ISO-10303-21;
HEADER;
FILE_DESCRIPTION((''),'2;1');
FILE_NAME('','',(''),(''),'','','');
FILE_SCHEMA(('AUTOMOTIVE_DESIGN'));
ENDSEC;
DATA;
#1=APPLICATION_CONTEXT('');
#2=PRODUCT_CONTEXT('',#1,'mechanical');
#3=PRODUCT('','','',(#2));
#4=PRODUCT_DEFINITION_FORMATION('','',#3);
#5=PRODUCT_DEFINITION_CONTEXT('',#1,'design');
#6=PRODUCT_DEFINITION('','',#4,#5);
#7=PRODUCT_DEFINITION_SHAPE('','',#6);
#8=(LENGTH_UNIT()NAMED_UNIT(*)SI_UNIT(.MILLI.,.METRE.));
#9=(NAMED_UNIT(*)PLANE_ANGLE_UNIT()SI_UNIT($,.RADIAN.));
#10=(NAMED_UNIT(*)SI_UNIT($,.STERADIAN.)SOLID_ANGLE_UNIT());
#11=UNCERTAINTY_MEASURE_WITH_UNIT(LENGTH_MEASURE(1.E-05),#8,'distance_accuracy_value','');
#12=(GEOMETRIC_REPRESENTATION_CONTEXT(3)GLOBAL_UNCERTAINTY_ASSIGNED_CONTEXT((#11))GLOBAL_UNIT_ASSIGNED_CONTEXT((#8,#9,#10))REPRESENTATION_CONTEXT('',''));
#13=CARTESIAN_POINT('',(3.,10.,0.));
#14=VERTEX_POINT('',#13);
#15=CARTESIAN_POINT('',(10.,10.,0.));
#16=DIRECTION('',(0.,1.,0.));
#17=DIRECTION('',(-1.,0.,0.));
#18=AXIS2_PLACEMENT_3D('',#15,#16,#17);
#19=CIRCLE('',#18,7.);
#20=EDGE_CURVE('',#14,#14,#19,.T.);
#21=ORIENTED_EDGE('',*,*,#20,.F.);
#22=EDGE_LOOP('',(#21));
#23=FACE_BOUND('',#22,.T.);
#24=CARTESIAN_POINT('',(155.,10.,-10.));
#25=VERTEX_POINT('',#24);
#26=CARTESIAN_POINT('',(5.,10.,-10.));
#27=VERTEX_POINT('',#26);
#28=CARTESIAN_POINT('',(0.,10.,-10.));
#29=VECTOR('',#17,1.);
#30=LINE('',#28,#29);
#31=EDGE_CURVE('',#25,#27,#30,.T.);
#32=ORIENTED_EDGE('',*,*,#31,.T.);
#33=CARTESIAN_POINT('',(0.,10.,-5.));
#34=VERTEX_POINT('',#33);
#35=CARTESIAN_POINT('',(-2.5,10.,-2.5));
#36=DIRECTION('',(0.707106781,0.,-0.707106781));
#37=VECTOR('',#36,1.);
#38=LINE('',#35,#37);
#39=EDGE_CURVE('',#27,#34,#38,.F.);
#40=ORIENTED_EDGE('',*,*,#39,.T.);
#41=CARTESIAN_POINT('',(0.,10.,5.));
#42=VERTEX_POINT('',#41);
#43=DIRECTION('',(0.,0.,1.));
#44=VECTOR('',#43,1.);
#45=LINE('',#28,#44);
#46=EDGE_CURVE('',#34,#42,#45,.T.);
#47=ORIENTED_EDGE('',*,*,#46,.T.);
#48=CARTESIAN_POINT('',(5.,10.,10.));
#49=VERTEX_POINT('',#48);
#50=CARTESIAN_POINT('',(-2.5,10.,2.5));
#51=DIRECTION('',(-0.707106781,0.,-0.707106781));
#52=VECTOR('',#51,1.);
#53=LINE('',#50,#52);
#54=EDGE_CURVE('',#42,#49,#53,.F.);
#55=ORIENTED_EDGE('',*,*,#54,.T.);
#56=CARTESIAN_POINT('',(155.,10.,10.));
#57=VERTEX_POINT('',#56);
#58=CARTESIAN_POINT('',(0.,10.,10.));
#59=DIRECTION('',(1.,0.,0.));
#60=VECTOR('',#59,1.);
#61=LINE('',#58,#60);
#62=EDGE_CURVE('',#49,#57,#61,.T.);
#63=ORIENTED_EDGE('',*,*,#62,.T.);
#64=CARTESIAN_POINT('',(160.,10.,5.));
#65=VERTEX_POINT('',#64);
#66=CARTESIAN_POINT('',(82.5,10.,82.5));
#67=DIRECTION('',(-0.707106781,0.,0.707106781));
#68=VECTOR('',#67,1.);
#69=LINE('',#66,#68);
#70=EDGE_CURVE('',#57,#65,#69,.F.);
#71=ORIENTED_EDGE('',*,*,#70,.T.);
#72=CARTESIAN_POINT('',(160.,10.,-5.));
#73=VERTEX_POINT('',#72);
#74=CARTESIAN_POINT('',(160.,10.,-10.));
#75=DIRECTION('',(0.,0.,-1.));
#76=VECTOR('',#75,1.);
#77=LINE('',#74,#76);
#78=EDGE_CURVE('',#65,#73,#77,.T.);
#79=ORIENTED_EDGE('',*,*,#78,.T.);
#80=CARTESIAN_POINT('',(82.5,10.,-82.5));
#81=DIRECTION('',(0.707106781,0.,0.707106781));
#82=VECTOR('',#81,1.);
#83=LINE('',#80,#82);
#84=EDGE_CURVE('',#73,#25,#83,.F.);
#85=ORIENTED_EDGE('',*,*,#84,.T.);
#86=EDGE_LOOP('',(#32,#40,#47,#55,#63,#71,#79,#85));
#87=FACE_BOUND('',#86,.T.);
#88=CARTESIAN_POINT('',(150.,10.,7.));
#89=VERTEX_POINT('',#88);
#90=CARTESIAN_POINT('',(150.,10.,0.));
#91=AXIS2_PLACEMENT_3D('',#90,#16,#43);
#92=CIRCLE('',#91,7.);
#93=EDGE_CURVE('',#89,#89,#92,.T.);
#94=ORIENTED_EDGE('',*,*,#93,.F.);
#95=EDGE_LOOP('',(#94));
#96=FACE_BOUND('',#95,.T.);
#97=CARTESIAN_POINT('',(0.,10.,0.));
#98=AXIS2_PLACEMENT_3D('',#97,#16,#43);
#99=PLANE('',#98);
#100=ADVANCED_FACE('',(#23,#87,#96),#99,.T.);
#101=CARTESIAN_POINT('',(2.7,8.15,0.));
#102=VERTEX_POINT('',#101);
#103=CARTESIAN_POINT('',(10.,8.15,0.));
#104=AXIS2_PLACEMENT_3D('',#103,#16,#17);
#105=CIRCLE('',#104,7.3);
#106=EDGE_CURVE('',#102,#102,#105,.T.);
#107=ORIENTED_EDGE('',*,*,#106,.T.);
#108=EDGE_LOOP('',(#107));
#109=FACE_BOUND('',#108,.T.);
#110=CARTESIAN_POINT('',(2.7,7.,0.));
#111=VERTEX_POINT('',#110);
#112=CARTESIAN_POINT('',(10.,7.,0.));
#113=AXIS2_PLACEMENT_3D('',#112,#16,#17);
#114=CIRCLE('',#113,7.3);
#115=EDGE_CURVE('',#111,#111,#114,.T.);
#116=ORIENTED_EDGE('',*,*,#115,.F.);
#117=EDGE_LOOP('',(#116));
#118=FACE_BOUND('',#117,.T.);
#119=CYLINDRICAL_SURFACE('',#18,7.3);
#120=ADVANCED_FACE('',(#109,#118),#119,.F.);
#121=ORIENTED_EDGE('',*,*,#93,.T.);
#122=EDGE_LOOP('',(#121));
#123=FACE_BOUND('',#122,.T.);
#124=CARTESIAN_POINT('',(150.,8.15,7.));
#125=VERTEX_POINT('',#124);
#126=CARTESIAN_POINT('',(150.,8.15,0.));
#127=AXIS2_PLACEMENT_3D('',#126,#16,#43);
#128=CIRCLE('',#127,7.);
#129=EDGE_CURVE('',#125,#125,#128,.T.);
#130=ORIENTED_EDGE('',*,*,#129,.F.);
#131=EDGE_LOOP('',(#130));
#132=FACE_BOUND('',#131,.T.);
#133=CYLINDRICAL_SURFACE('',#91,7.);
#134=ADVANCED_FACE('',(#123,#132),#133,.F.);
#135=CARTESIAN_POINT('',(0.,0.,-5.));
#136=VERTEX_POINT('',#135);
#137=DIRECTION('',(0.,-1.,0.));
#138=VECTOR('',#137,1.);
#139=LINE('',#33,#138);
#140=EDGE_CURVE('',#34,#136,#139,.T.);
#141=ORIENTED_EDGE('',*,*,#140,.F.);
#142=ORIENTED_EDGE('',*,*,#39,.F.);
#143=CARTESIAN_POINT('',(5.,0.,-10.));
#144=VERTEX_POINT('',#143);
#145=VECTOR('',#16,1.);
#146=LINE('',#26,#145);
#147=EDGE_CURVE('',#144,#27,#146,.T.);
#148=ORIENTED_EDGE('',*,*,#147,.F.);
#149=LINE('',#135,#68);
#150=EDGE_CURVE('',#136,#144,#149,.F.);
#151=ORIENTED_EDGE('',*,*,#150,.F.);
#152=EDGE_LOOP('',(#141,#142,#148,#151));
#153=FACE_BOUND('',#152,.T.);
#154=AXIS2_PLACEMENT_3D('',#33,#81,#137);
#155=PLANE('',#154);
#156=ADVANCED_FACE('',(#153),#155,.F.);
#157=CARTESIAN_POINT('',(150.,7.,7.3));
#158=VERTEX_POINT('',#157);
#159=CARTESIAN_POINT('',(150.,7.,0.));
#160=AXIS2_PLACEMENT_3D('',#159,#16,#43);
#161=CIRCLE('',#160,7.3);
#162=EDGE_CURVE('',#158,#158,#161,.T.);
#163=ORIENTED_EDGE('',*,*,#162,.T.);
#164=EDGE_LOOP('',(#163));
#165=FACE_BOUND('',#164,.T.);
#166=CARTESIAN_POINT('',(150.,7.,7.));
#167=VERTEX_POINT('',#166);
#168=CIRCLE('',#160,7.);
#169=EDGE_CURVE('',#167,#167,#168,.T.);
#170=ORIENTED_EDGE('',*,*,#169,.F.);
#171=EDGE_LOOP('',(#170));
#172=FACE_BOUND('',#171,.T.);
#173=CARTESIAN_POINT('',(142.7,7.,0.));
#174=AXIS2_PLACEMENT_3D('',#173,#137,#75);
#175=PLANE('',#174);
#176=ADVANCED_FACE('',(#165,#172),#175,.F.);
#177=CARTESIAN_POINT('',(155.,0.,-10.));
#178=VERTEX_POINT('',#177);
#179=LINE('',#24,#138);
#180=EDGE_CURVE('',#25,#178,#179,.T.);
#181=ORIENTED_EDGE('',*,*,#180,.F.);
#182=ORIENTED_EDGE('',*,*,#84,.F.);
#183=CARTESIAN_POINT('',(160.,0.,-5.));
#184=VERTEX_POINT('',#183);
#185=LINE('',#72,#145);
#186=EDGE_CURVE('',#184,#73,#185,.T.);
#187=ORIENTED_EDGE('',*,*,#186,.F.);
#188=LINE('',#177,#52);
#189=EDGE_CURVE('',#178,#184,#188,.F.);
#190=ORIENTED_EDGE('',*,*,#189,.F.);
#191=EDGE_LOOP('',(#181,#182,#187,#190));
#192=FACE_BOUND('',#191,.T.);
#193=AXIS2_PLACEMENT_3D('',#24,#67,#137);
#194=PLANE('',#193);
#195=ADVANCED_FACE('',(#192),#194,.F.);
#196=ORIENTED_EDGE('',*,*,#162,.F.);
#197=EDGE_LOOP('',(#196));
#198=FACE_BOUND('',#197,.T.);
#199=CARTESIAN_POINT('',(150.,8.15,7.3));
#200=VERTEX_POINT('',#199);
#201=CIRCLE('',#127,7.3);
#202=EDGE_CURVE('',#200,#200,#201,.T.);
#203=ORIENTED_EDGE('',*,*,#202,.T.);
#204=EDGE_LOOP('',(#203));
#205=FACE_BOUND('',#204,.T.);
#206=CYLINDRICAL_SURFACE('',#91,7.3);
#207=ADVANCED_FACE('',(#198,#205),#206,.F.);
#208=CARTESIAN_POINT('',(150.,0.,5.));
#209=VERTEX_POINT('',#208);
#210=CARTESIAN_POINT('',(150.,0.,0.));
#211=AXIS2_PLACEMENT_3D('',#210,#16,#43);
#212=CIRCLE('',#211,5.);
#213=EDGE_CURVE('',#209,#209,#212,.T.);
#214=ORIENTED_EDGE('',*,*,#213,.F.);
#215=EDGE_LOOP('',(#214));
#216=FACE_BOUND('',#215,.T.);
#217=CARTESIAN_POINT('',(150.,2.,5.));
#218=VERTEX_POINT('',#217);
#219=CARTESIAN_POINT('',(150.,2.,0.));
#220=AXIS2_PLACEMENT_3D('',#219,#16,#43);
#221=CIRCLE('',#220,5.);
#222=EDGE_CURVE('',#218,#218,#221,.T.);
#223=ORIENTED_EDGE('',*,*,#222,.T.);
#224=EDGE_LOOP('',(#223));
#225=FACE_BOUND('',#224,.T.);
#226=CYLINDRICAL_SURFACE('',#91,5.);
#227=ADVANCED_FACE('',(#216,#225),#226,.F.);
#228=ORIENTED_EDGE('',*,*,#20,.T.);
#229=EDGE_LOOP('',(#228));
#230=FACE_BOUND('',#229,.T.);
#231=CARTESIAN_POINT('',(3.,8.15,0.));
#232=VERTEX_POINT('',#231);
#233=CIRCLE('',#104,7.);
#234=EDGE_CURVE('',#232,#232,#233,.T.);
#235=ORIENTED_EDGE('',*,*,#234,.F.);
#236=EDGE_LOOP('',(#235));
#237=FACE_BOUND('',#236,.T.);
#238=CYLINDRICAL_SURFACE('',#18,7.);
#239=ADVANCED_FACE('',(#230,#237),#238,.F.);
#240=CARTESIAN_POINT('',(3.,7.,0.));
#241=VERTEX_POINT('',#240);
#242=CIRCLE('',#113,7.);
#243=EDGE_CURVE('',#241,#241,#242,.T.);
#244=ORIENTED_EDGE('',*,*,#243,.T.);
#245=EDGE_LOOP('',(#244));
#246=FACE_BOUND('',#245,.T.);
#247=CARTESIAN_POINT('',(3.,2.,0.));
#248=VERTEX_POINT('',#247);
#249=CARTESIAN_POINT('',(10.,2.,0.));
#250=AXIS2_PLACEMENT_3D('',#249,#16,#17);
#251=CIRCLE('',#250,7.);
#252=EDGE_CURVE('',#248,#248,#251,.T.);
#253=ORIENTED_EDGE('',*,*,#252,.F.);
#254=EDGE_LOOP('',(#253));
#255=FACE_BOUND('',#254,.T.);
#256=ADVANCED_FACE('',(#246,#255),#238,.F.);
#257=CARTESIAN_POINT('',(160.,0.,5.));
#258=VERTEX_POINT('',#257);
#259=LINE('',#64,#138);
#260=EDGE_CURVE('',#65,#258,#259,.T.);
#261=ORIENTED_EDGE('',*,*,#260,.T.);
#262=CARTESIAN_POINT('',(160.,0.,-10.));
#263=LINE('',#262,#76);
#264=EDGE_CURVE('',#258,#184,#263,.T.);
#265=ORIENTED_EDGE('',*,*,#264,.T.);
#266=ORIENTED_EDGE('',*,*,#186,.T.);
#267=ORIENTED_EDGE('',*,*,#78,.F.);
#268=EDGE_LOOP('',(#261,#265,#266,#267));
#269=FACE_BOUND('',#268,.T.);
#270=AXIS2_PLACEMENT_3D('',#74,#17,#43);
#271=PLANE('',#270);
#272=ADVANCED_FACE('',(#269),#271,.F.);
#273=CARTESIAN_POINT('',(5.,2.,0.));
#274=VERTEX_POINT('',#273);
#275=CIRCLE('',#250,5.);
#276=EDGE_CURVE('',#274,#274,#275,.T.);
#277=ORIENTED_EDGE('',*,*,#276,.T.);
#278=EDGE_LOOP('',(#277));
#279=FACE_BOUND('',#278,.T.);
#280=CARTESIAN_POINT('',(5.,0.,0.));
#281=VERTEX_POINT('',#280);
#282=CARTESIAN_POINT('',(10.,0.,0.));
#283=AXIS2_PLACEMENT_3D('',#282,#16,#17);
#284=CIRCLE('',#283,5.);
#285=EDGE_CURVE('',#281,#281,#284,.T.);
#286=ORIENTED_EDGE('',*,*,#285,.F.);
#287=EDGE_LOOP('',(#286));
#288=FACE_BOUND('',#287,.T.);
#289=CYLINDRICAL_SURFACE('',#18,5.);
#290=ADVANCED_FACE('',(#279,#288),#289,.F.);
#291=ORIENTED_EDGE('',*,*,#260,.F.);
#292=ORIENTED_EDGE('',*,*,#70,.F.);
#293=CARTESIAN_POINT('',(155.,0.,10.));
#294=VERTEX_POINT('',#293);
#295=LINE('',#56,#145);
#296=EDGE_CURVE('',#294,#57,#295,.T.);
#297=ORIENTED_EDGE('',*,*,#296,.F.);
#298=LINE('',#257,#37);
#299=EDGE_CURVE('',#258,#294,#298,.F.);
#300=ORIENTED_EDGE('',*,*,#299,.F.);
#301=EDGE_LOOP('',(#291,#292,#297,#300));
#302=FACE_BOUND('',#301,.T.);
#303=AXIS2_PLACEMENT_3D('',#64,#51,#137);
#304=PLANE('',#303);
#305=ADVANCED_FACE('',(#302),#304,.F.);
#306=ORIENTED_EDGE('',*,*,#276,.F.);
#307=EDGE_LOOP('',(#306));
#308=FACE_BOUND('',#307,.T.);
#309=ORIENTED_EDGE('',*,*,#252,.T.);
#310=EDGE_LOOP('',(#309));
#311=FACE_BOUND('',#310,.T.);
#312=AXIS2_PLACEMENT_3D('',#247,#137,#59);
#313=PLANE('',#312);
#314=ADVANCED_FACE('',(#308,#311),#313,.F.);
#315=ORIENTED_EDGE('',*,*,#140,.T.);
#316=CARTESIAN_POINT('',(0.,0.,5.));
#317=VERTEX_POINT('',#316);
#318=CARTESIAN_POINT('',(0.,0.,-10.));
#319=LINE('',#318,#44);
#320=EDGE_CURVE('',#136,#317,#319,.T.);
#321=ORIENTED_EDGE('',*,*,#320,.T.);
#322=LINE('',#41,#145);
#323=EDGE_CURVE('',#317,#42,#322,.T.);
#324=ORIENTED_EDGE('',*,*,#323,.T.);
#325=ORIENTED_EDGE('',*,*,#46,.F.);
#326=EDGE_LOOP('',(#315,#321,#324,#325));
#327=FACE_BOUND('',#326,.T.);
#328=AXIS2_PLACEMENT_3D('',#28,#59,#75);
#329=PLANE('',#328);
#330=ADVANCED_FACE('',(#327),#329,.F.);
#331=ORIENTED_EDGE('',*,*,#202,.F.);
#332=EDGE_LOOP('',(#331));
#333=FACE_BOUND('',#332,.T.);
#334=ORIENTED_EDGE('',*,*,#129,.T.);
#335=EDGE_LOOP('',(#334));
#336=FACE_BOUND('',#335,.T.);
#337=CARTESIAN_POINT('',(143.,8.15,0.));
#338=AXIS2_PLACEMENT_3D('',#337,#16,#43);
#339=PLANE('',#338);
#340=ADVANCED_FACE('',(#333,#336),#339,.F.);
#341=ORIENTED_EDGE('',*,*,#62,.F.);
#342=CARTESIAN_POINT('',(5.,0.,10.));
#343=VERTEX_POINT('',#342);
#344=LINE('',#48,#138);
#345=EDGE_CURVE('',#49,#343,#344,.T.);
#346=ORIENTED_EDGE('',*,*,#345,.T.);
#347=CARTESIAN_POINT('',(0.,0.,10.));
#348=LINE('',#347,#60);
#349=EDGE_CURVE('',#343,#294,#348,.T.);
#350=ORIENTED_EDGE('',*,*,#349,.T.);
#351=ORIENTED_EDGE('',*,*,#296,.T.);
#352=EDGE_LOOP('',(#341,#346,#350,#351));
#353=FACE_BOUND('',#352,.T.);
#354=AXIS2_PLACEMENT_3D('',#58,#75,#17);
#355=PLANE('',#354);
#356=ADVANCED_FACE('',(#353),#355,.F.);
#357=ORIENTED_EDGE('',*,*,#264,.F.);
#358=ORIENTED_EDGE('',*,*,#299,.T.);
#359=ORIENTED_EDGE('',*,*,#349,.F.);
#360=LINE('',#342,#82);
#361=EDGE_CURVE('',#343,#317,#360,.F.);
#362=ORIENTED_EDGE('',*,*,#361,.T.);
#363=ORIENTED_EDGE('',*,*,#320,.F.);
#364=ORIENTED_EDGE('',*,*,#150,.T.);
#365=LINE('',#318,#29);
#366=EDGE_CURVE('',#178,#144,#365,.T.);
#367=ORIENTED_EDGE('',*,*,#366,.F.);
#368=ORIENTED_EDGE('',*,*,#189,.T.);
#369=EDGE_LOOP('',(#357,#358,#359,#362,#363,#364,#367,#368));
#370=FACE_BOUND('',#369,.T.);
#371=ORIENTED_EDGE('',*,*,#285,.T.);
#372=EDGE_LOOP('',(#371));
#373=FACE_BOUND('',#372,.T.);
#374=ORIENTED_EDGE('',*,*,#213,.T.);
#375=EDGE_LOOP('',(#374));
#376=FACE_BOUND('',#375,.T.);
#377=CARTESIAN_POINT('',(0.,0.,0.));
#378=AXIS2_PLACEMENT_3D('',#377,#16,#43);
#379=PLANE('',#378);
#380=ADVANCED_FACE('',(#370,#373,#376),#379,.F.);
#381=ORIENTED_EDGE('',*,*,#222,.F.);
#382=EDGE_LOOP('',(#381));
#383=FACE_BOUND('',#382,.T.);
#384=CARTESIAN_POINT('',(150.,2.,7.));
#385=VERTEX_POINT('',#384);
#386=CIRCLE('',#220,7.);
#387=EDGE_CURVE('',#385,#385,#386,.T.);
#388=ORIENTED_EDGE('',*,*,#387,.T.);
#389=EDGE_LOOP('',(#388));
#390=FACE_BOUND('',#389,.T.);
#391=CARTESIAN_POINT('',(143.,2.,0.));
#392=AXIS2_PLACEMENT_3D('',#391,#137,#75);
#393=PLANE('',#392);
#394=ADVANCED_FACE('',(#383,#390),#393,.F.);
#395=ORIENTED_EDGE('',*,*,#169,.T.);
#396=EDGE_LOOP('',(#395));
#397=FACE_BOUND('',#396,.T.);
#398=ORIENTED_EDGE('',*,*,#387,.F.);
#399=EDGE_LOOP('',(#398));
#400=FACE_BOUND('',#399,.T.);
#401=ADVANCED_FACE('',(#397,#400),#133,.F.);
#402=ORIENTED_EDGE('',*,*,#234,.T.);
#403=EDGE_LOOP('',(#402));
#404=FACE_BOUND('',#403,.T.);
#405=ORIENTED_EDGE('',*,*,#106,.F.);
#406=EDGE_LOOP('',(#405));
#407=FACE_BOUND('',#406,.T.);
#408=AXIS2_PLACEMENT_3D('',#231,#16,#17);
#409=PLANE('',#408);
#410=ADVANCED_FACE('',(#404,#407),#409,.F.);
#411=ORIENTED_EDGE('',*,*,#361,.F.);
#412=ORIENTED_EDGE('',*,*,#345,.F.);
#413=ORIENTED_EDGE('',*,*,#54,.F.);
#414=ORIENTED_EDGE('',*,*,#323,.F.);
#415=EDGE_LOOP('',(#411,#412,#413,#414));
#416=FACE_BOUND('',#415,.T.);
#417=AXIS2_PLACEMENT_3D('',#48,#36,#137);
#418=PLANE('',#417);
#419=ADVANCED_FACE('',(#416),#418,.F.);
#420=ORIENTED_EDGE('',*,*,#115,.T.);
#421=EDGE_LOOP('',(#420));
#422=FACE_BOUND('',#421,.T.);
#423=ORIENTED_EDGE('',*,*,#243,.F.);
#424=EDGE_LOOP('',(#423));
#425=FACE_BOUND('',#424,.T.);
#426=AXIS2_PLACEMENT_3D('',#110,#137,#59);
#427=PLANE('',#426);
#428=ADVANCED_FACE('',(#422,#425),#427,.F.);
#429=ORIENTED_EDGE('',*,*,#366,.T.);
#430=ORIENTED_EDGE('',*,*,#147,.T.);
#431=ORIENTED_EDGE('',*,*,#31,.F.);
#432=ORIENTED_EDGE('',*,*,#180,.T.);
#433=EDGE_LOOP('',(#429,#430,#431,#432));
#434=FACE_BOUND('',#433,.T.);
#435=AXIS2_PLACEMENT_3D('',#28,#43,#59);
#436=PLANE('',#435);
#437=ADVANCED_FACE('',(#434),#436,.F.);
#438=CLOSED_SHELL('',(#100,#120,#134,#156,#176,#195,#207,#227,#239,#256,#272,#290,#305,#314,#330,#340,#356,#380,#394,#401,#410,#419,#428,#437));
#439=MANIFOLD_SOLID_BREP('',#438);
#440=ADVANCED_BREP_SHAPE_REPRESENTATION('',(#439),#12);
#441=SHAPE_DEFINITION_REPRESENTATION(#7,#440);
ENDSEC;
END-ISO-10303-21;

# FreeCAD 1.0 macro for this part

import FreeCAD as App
import Part
import Sketcher
from FreeCAD import Vector
Q = App.Units.Quantity


def edges_at(feature, points):
    """Names of the edges that pass closest to the given points."""
    edges = feature.Shape.Edges
    near = lambda p: min(range(len(edges)), key=lambda i: edges[i].distToShape(Part.Vertex(*p))[0])
    return sorted({f"Edge{near(p) + 1}" for p in points})


def add_polygon(sketch, points):
    """Adds a closed chain of lines whose ends are joined by coincident constraints."""
    first, n = sketch.GeometryCount, len(points)
    for a, b in zip(points, points[1:] + points[:1]):
        sketch.addGeometry(Part.LineSegment(App.Vector(*a, 0), App.Vector(*b, 0)), False)
    for i in range(n):
        sketch.addConstraint(Sketcher.Constraint("Coincident", first + i, 2, first + (i + 1) % n, 1))

doc = App.newDocument("Part")
body = doc.addObject("PartDesign::Body", "Body")

sketch1 = doc.addObject("Sketcher::SketchObject", "Sketch")
body.addObject(sketch1)
sketch1.AttachmentSupport = (doc.XZ_Plane, [""])
sketch1.MapMode = "FlatFace"
add_polygon(sketch1, [(0, -10), (0, 10), (160, 10), (160, -10)])
sketch1.addConstraint([
    Sketcher.Constraint("Vertical", 0),
    Sketcher.Constraint("Horizontal", 1),
    Sketcher.Constraint("Vertical", 2),
    Sketcher.Constraint("Horizontal", 3),
    Sketcher.Constraint("Symmetric", 0, 2, 3, 2, -1, 1),
    Sketcher.Constraint("DistanceX", 1, 1, 1, 2, Q("160 mm")),
    Sketcher.Constraint("DistanceY", 0, 1, 0, 2, Q("20 mm")),
])
pad1 = doc.addObject("PartDesign::Pad", "Pad")
body.addObject(pad1)
pad1.Profile = sketch1
pad1.Length = 10
pad1.Reversed = True
doc.recompute()

chamfer = doc.addObject("PartDesign::Chamfer", "Chamfer")
body.addObject(chamfer)
chamfer.Base = (pad1, edges_at(pad1, [
    (0, 5, -10),
    (160, 5, -10),
    (160, 5, 10),
    (0, 5, 10),
]))
chamfer.Size = 5

sketch2 = doc.addObject("Sketcher::SketchObject", "Sketch001")
body.addObject(sketch2)
sketch2.AttachmentSupport = (doc.XY_Plane, [""])
sketch2.MapMode = "FlatFace"
add_polygon(sketch2, [(2.7, 7), (3, 7), (3, 2), (5, 2), (5, 0), (10, 0), (10, 10), (3, 10), (3, 8.15), (2.7, 8.15)])
sketch2.addGeometry(Part.LineSegment(Vector(10, 10, 0), Vector(10, 0, 0)), True)
sketch2.addConstraint([
    Sketcher.Constraint("Horizontal", 0),
    Sketcher.Constraint("Vertical", 1),
    Sketcher.Constraint("Horizontal", 2),
    Sketcher.Constraint("Vertical", 3),
    Sketcher.Constraint("Horizontal", 4),
    Sketcher.Constraint("Vertical", 5),
    Sketcher.Constraint("Horizontal", 6),
    Sketcher.Constraint("Vertical", 7),
    Sketcher.Constraint("Horizontal", 8),
    Sketcher.Constraint("Vertical", 9),
    Sketcher.Constraint("Vertical", 10),
    Sketcher.Constraint("Coincident", 10, 1, 5, 2),
    Sketcher.Constraint("PointOnObject", 3, 2, -1),
    Sketcher.Constraint("PointOnObject", 10, 2, -1),
    Sketcher.Constraint("Vertical", 1, 2, 6, 2),
    Sketcher.Constraint("Equal", 4, 1),
    Sketcher.Constraint("Equal", 2, 3),
    Sketcher.Constraint("DistanceX", 2, 1, 2, 2, Q("2 mm")),
    Sketcher.Constraint("DistanceX", 4, 1, 4, 2, Q("5 mm")),
    Sketcher.Constraint("DistanceY", 5, 1, 5, 2, Q("10 mm")),
    Sketcher.Constraint("DistanceX", 0, 1, 0, 2, Q("0.3 mm")),
    Sketcher.Constraint("DistanceX", -1, 1, 0, 2, Q("3 mm")),
    Sketcher.Constraint("DistanceY", 7, 2, 7, 1, Q("1.85 mm")),
])
groove = doc.addObject("PartDesign::Groove", "Groove")
body.addObject(groove)
groove.Profile = sketch2
groove.ReferenceAxis = (sketch2, ["Axis0"])
groove.Angle = 360

sketch3 = doc.addObject("Sketcher::SketchObject", "Sketch002")
body.addObject(sketch3)
sketch3.AttachmentSupport = (doc.XY_Plane, [""])
sketch3.MapMode = "FlatFace"
add_polygon(sketch3, [(143, 10), (143, 8.15), (142.7, 8.15), (142.7, 7), (143, 7), (143, 2), (145, 2), (145, 0), (150, 0), (150, 10)])
sketch3.addGeometry(Part.LineSegment(Vector(150, 10, 0), Vector(150, 0, 0)), True)
sketch3.addConstraint([
    Sketcher.Constraint("Vertical", 0),
    Sketcher.Constraint("Horizontal", 1),
    Sketcher.Constraint("Vertical", 2),
    Sketcher.Constraint("Horizontal", 3),
    Sketcher.Constraint("Vertical", 4),
    Sketcher.Constraint("Horizontal", 5),
    Sketcher.Constraint("Vertical", 6),
    Sketcher.Constraint("Horizontal", 7),
    Sketcher.Constraint("Vertical", 8),
    Sketcher.Constraint("Horizontal", 9),
    Sketcher.Constraint("Vertical", 10),
    Sketcher.Constraint("Coincident", 10, 1, 8, 2),
    Sketcher.Constraint("PointOnObject", 6, 2, -1),
    Sketcher.Constraint("PointOnObject", 10, 2, -1),
    Sketcher.Constraint("Vertical", 0, 2, 3, 2),
    Sketcher.Constraint("Equal", 7, 4),
    Sketcher.Constraint("Equal", 5, 6),
    Sketcher.Constraint("DistanceX", 5, 1, 5, 2, Q("2 mm")),
    Sketcher.Constraint("DistanceX", 7, 1, 7, 2, Q("5 mm")),
    Sketcher.Constraint("DistanceY", 8, 1, 8, 2, Q("10 mm")),
    Sketcher.Constraint("DistanceX", 1, 2, 1, 1, Q("0.3 mm")),
    Sketcher.Constraint("DistanceX", -1, 1, 0, 2, Q("143 mm")),
    Sketcher.Constraint("DistanceY", 0, 2, 0, 1, Q("1.85 mm")),
])
groove2 = doc.addObject("PartDesign::Groove", "Groove001")
body.addObject(groove2)
groove2.Profile = sketch3
groove2.ReferenceAxis = (sketch3, ["Axis0"])
groove2.Angle = 360

doc.recompute()
